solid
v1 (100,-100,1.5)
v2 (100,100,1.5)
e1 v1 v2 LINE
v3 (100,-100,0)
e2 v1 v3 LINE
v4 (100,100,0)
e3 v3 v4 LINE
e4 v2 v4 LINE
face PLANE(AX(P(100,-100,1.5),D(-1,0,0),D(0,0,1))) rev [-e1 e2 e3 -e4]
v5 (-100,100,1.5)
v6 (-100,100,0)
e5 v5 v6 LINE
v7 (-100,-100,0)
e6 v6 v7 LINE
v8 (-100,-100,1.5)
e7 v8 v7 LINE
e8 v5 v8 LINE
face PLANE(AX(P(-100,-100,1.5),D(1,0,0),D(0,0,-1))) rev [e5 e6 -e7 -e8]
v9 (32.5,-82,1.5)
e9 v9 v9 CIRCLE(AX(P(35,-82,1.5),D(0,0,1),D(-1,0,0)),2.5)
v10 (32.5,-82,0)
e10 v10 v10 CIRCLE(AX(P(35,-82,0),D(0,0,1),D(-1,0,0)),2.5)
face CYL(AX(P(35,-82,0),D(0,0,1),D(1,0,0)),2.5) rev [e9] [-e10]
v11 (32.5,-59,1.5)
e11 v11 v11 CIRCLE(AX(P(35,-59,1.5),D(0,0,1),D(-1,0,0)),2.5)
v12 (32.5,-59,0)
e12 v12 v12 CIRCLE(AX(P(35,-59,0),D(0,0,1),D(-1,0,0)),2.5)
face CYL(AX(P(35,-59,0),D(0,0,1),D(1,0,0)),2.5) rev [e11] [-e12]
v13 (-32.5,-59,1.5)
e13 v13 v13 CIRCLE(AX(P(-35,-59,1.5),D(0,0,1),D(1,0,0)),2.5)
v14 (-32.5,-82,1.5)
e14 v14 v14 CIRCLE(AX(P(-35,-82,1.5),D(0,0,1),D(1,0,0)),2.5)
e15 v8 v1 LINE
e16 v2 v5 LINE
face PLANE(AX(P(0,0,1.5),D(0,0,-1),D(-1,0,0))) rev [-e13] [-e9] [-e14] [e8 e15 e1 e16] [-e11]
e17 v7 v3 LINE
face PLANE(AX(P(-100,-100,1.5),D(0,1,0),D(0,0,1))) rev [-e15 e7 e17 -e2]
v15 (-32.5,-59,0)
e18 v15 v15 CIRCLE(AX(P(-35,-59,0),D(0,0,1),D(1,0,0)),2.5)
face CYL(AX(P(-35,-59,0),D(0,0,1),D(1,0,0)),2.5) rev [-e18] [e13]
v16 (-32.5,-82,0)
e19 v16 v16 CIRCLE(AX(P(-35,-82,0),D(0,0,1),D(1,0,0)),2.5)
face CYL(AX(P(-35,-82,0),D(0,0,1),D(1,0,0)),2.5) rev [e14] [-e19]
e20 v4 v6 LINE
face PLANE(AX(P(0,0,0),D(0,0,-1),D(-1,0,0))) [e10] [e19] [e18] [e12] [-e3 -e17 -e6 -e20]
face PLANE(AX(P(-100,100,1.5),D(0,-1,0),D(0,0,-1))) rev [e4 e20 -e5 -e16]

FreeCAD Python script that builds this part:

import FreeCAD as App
import Part
import Sketcher

doc = App.newDocument("Part")
body = doc.addObject("PartDesign::Body", "Body")

# Sketch on XY plane
sketch1 = body.newObject("Sketcher::SketchObject", "Sketch")
sketch1.AttachmentSupport = (doc.getObject("XY_Plane"), [""])
sketch1.MapMode = "FlatFace"
sketch1.addGeometry(Part.LineSegment(App.Vector(-100, 100, 0), App.Vector(-100, -100, 0)), False)
sketch1.addGeometry(Part.LineSegment(App.Vector(-100, -100, 0), App.Vector(100, -100, 0)), False)
sketch1.addGeometry(Part.LineSegment(App.Vector(100, -100, 0), App.Vector(100, 100, 0)), False)
sketch1.addGeometry(Part.LineSegment(App.Vector(100, 100, 0), App.Vector(-100, 100, 0)), False)
sketch1.addConstraint(Sketcher.Constraint("Coincident", 0, 2, 1, 1))
sketch1.addConstraint(Sketcher.Constraint("Coincident", 1, 2, 2, 1))
sketch1.addConstraint(Sketcher.Constraint("Coincident", 2, 2, 3, 1))
sketch1.addConstraint(Sketcher.Constraint("Coincident", 3, 2, 0, 1))
sketch1.addConstraint(Sketcher.Constraint("Vertical", 0))
sketch1.addConstraint(Sketcher.Constraint("Horizontal", 1))
sketch1.addConstraint(Sketcher.Constraint("Vertical", 2))
sketch1.addConstraint(Sketcher.Constraint("Horizontal", 3))
sketch1.addConstraint(Sketcher.Constraint("Symmetric", 0, 2, 2, 2, -1, 1))
sketch1.addConstraint(Sketcher.Constraint("Equal", 3, 0))
sketch1.addConstraint(Sketcher.Constraint("DistanceX", 1, 1, 1, 2, 200.0))
pad1 = body.newObject("PartDesign::Pad", "Pad")
pad1.Profile = sketch1
pad1.Length = 1.5

# Sketch on XY plane
sketch2 = body.newObject("Sketcher::SketchObject", "Sketch001")
sketch2.AttachmentSupport = (doc.getObject("XY_Plane"), [""])
sketch2.MapMode = "FlatFace"
sketch2.AttachmentOffset = App.Placement(App.Vector(0, 0, 1.5), App.Rotation())
sketch2.addGeometry(Part.Circle(App.Vector(-35, -82, 0), App.Vector(0, 0, 1), 2.5), False)
sketch2.addGeometry(Part.Circle(App.Vector(-35, -59, 0), App.Vector(0, 0, 1), 2.5), False)
sketch2.addGeometry(Part.Circle(App.Vector(35, -82, 0), App.Vector(0, 0, 1), 2.5), False)
sketch2.addGeometry(Part.Circle(App.Vector(35, -59, 0), App.Vector(0, 0, 1), 2.5), False)
sketch2.addConstraint(Sketcher.Constraint("Equal", 0, 1))
sketch2.addConstraint(Sketcher.Constraint("Equal", 1, 2))
sketch2.addConstraint(Sketcher.Constraint("Equal", 2, 3))
sketch2.addConstraint(Sketcher.Constraint("Symmetric", 0, 3, 2, 3, -2))
sketch2.addConstraint(Sketcher.Constraint("Symmetric", 1, 3, 3, 3, -2))
sketch2.addConstraint(Sketcher.Constraint("Vertical", 0, 3, 1, 3))
sketch2.addConstraint(Sketcher.Constraint("Diameter", 0, 5.0))
sketch2.addConstraint(Sketcher.Constraint("DistanceX", 0, 3, -1, 1, 35.0))
sketch2.addConstraint(Sketcher.Constraint("DistanceY", 0, 3, -1, 1, 82.0))
sketch2.addConstraint(Sketcher.Constraint("DistanceY", 1, 3, -1, 1, 59.0))
pocket1 = body.newObject("PartDesign::Pocket", "Pocket")
pocket1.Profile = sketch2
pocket1.Length = 1.5

doc.recompute()
